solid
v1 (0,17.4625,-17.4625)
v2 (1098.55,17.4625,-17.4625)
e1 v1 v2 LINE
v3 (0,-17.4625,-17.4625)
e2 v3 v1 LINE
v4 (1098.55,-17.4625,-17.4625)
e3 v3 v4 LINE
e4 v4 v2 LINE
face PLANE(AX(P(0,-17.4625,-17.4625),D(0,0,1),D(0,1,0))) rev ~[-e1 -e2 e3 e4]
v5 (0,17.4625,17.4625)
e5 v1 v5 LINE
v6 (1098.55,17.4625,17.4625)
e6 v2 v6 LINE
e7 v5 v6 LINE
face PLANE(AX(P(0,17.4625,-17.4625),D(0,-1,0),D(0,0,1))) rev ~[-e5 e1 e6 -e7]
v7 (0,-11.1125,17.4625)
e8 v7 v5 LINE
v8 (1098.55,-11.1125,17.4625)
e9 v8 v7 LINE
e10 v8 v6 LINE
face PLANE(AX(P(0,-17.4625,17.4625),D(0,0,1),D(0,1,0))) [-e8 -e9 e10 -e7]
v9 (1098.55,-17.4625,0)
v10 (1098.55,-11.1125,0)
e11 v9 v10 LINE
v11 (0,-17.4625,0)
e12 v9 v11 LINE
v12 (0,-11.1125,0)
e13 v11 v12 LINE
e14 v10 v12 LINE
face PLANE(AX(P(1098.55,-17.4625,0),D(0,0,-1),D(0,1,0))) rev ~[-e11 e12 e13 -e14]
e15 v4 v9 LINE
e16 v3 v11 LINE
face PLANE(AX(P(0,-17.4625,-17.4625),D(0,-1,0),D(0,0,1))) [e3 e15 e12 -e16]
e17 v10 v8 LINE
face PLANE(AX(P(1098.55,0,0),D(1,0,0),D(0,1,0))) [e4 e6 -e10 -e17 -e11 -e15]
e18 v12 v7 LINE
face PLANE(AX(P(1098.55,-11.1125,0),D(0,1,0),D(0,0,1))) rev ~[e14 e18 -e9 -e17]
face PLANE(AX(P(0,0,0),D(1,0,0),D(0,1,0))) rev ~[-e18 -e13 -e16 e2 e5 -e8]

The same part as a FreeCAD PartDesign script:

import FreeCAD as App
import Part
import Sketcher

V = App.Vector
Q = App.Units.Quantity


def add_polygon(sketch, points):
    """Adds a closed chain of lines whose ends are joined by coincident constraints."""
    first, n = sketch.GeometryCount, len(points)
    for a, b in zip(points, points[1:] + points[:1]):
        sketch.addGeometry(Part.LineSegment(App.Vector(*a, 0), App.Vector(*b, 0)), False)
    for i in range(n):
        sketch.addConstraint(Sketcher.Constraint("Coincident", first + i, 2, first + (i + 1) % n, 1))

doc = App.newDocument("Part")
body = doc.addObject("PartDesign::Body", "Body")

sketch1 = body.newObject("Sketcher::SketchObject", "Sketch")
sketch1.AttachmentSupport = (doc.getObject("YZ_Plane"), [""])
sketch1.MapMode = "FlatFace"
add_polygon(sketch1, [(-17, 17), (-17, -17), (17, -17), (17, 17)])
sketch1.addConstraint(Sketcher.Constraint("Vertical", 0))
sketch1.addConstraint(Sketcher.Constraint("Horizontal", 1))
sketch1.addConstraint(Sketcher.Constraint("Vertical", 2))
sketch1.addConstraint(Sketcher.Constraint("Horizontal", 3))
sketch1.addConstraint(Sketcher.Constraint("Symmetric", 0, 2, 2, 2, -1, 1))
sketch1.addConstraint(Sketcher.Constraint("Equal", 3, 0))
sketch1.addConstraint(Sketcher.Constraint("DistanceX", 1, 1, 1, 2, Q("1.375 in")))
pad1 = body.newObject("PartDesign::Pad", "Pad")
pad1.Profile = sketch1
pad1.Length = Q("43.25 in")

sketch2 = body.newObject("Sketcher::SketchObject", "Sketch001")
sketch2.AttachmentSupport = (doc.getObject("YZ_Plane"), [""])
sketch2.MapMode = "FlatFace"
sketch2.AttachmentOffset = App.Placement(V(0, 0, 43.25 * 25.4), App.Rotation())
add_polygon(sketch2, [(-17, 17), (-17, 0), (-11, 0), (-11, 17)])
sketch2.addConstraint(Sketcher.Constraint("Vertical", 0))
sketch2.addConstraint(Sketcher.Constraint("Horizontal", 1))
sketch2.addConstraint(Sketcher.Constraint("Vertical", 2))
sketch2.addConstraint(Sketcher.Constraint("Horizontal", 3))
sketch2.addConstraint(Sketcher.Constraint("PointOnObject", 0, 2, -1))
sketch2.addConstraint(Sketcher.Constraint("DistanceX", 1, 1, 1, 2, Q("0.25 in")))
sketch2.addConstraint(Sketcher.Constraint("DistanceY", 0, 2, 0, 1, Q("0.6875 in")))
sketch2.addConstraint(Sketcher.Constraint("DistanceX", 0, 2, -1, 1, Q("0.6875 in")))
pocket1 = body.newObject("PartDesign::Pocket", "Pocket")
pocket1.Profile = sketch2
pocket1.Type = "ThroughAll"

doc.recompute()
